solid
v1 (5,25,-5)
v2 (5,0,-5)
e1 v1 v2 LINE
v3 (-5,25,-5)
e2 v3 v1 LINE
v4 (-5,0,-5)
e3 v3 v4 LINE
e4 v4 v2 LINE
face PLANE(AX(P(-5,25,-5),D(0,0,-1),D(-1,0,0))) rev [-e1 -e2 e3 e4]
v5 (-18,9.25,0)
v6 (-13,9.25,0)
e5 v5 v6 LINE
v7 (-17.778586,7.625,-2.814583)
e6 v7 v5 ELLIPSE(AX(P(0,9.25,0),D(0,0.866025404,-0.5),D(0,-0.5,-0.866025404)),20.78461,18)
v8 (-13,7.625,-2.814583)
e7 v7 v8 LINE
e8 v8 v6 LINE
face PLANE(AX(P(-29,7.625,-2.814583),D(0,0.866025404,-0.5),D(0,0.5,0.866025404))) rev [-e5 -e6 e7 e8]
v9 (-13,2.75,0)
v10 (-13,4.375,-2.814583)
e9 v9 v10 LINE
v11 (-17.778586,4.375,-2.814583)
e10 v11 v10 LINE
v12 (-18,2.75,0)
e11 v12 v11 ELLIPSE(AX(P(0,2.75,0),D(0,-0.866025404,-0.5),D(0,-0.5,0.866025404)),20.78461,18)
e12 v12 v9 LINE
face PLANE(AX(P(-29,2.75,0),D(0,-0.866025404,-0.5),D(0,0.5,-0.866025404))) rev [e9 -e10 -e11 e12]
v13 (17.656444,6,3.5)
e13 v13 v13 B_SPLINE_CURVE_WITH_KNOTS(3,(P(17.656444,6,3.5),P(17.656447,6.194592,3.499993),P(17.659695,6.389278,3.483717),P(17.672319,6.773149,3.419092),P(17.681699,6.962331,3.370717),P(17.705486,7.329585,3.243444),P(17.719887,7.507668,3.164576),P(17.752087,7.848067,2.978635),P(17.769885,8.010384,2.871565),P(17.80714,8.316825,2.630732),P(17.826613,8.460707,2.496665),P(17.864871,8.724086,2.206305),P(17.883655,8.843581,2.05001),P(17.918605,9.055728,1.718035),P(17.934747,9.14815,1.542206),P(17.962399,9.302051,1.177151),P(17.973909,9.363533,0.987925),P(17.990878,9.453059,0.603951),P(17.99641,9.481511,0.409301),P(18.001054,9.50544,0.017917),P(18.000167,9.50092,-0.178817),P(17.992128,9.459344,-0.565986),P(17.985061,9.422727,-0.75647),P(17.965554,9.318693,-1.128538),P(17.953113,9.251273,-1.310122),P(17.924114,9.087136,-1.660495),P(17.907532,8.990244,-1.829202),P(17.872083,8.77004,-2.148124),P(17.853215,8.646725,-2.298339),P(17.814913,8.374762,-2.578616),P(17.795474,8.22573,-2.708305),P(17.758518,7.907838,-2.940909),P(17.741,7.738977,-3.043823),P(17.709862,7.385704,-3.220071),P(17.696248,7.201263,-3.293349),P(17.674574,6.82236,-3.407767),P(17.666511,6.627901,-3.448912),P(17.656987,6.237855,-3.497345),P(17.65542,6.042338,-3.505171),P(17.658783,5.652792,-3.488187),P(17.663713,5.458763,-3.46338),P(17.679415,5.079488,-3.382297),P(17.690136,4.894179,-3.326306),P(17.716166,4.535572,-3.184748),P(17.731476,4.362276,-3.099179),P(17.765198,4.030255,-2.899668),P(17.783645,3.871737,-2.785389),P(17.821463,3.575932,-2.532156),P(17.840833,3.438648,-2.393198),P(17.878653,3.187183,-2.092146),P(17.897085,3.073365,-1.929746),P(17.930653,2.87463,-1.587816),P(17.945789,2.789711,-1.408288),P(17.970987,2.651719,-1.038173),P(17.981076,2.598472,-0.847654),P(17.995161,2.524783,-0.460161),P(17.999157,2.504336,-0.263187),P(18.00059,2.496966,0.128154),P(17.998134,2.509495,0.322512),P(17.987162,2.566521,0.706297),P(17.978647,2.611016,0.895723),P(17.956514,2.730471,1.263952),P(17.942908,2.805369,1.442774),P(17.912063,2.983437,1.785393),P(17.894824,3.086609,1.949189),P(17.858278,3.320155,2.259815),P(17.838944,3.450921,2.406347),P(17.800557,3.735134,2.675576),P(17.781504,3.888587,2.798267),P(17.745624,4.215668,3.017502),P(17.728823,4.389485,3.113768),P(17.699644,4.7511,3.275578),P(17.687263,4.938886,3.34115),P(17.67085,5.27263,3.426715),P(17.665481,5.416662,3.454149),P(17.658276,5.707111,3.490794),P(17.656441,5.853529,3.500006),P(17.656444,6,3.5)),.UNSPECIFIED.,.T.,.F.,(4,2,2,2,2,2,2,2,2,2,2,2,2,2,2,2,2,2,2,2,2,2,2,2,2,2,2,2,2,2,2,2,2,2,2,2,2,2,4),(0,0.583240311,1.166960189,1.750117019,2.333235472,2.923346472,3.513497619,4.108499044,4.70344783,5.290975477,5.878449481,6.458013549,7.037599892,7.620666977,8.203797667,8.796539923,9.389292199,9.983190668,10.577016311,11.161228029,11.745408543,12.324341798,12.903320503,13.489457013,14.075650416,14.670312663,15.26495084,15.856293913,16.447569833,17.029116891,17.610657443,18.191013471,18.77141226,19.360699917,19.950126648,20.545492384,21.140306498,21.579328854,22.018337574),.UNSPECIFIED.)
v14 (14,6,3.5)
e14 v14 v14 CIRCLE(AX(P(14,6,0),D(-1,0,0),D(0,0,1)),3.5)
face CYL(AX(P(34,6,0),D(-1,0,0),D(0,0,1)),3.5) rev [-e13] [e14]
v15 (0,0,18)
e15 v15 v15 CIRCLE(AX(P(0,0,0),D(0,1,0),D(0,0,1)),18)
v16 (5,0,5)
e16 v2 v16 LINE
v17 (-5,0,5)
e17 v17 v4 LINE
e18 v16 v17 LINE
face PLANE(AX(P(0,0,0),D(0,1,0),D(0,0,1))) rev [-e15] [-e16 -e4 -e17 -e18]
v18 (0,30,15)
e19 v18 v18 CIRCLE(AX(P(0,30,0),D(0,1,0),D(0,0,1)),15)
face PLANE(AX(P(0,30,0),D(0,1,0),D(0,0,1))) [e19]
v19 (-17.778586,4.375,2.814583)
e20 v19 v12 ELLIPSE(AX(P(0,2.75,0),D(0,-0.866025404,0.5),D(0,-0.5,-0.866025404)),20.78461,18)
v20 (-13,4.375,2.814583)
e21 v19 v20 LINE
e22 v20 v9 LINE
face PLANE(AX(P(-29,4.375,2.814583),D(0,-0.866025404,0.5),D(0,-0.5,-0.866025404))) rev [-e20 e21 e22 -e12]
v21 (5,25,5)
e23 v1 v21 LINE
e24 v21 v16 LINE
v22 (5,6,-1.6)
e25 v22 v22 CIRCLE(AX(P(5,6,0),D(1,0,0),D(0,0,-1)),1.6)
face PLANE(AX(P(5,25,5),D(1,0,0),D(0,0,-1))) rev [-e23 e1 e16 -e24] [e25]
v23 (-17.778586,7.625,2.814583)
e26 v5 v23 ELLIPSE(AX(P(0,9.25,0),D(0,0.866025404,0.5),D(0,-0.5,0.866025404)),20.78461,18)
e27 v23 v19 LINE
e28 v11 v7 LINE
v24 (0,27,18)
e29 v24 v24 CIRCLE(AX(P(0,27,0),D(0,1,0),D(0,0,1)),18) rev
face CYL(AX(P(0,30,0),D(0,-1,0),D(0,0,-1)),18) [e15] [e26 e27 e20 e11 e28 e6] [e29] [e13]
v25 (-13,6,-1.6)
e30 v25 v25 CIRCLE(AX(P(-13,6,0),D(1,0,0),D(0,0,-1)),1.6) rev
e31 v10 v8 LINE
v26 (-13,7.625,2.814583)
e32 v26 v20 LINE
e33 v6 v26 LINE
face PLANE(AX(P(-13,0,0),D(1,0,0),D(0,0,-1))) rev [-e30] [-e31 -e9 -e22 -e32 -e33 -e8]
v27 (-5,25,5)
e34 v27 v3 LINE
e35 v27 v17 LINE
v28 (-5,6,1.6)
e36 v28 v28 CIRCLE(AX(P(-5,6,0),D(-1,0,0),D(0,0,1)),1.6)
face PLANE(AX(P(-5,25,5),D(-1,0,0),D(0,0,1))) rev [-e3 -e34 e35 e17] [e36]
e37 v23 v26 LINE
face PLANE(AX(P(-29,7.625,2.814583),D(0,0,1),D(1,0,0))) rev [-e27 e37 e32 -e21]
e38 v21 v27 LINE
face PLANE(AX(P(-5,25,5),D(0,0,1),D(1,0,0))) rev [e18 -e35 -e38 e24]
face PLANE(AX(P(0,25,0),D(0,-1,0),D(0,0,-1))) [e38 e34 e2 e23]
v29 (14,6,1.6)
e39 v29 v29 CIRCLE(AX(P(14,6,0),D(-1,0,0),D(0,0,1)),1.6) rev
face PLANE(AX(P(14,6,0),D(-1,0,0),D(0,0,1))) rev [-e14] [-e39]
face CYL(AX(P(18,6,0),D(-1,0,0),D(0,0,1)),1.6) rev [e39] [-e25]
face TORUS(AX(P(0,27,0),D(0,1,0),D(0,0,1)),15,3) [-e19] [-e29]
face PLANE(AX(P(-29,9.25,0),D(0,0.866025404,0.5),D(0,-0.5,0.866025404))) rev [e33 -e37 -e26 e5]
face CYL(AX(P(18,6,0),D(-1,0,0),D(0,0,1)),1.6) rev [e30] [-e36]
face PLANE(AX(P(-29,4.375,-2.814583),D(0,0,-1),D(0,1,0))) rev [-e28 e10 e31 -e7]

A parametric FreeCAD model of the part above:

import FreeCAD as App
import Part
import Sketcher
Q = App.Units.Quantity


def edges_at(feature, points):
    """Names of the edges that pass closest to the given points."""
    edges = feature.Shape.Edges
    near = lambda p: min(range(len(edges)), key=lambda i: edges[i].distToShape(Part.Vertex(*p))[0])
    return sorted({f"Edge{near(p) + 1}" for p in points})


def add_polygon(sketch, points):
    """Adds a closed chain of lines whose ends are joined by coincident constraints."""
    first, n = sketch.GeometryCount, len(points)
    for a, b in zip(points, points[1:] + points[:1]):
        sketch.addGeometry(Part.LineSegment(App.Vector(*a, 0), App.Vector(*b, 0)), False)
    for i in range(n):
        sketch.addConstraint(Sketcher.Constraint("Coincident", first + i, 2, first + (i + 1) % n, 1))

doc = App.newDocument("Part")
body = doc.addObject("PartDesign::Body", "Body")

# Sketch on XZ plane
sketch1 = doc.addObject("Sketcher::SketchObject", "Sketch")
body.addObject(sketch1)
sketch1.AttachmentSupport = (doc.XZ_Plane, [""])
sketch1.MapMode = "FlatFace"
sketch1.addGeometry(Part.Circle(App.Vector(0, 0, 0), App.Vector(0, 0, 1), 18), False)
sketch1.addConstraint(Sketcher.Constraint("Coincident", 0, 3, -1, 1))
sketch1.addConstraint(Sketcher.Constraint("Diameter", 0, Q("36 mm")))
pad1 = doc.addObject("PartDesign::Pad", "Pad")
body.addObject(pad1)
pad1.Profile = sketch1
pad1.Length = 30
pad1.Reversed = True
doc.recompute()

fillet = doc.addObject("PartDesign::Fillet", "Fillet")
body.addObject(fillet)
fillet.Base = (pad1, edges_at(pad1, [(-18, 30, 0)]))
fillet.Radius = 3

# Sketch on XZ plane
sketch2 = doc.addObject("Sketcher::SketchObject", "Sketch001")
body.addObject(sketch2)
sketch2.AttachmentSupport = (doc.XZ_Plane, [""])
sketch2.MapMode = "FlatFace"
add_polygon(sketch2, [(-5, 5), (-5, -5), (5, -5), (5, 5)])  # lines 0-3
sketch2.addConstraint(Sketcher.Constraint("Vertical", 0))
sketch2.addConstraint(Sketcher.Constraint("Horizontal", 1))
sketch2.addConstraint(Sketcher.Constraint("Vertical", 2))
sketch2.addConstraint(Sketcher.Constraint("Horizontal", 3))
sketch2.addConstraint(Sketcher.Constraint("Symmetric", 0, 2, 2, 2, -1, 1))
sketch2.addConstraint(Sketcher.Constraint("Equal", 3, 0))
sketch2.addConstraint(Sketcher.Constraint("DistanceX", 1, 1, 1, 2, Q("10 mm")))
pocket1 = doc.addObject("PartDesign::Pocket", "Pocket")
body.addObject(pocket1)
pocket1.Profile = sketch2
pocket1.Length = 25

# Sketch on YZ plane
sketch3 = doc.addObject("Sketcher::SketchObject", "Sketch002")
body.addObject(sketch3)
sketch3.AttachmentSupport = (doc.YZ_Plane, [""])
sketch3.MapMode = "FlatFace"
sketch3.AttachmentOffset = App.Placement(App.Vector(0, 0, 5), App.Rotation())
sketch3.addGeometry(Part.Circle(App.Vector(6, 0, 0), App.Vector(0, 0, 1), 1.6), False)
sketch3.addConstraint(Sketcher.Constraint("PointOnObject", 0, 3, -1))
sketch3.addConstraint(Sketcher.Constraint("Diameter", 0, Q("3.2 mm")))
sketch3.addConstraint(Sketcher.Constraint("DistanceX", -1, 1, 0, 3, Q("6 mm")))
pocket2 = doc.addObject("PartDesign::Pocket", "Pocket001")
body.addObject(pocket2)
pocket2.Profile = sketch3
pocket2.Type = "ThroughAll"
pocket2.Midplane = True

# Sketch on YZ plane
sketch4 = doc.addObject("Sketcher::SketchObject", "Sketch003")
body.addObject(sketch4)
sketch4.AttachmentSupport = (doc.YZ_Plane, [""])
sketch4.MapMode = "FlatFace"
sketch4.AttachmentOffset = App.Placement(App.Vector(0, 0, 14), App.Rotation())
sketch4.addGeometry(Part.Circle(App.Vector(6, 0, 0), App.Vector(0, 0, 1), 3.5), False)
sketch4.addConstraint(Sketcher.Constraint("PointOnObject", 0, 3, -1))
sketch4.addConstraint(Sketcher.Constraint("Diameter", 0, Q("7 mm")))
sketch4.addConstraint(Sketcher.Constraint("DistanceX", -1, 1, 0, 3, Q("6 mm")))
pocket3 = doc.addObject("PartDesign::Pocket", "Pocket002")
body.addObject(pocket3)
pocket3.Profile = sketch4
pocket3.Length = 20
pocket3.Reversed = True

# Sketch on YZ plane
sketch5 = doc.addObject("Sketcher::SketchObject", "Sketch004")
body.addObject(sketch5)
sketch5.AttachmentSupport = (doc.YZ_Plane, [""])
sketch5.MapMode = "FlatFace"
sketch5.AttachmentOffset = App.Placement(App.Vector(0, 0, -13), App.Rotation())
add_polygon(sketch5, [(7.625, 2.814583), (4.375, 2.814583), (2.75, 0), (4.375, -2.814583), (7.625, -2.814583), (9.25, 0)])  # lines 0-5
sketch5.addConstraint(Sketcher.Constraint("Horizontal", 0))
sketch5.addConstraint(Sketcher.Constraint("Horizontal", 3))
sketch5.addConstraint(Sketcher.Constraint("Symmetric", 0, 2, 2, 2, -1))
sketch5.addConstraint(Sketcher.Constraint("PointOnObject", 1, 2, -1))
sketch5.addConstraint(Sketcher.Constraint("PointOnObject", 4, 2, -1))
sketch5.addConstraint(Sketcher.Constraint("Parallel", 1, 4))
sketch5.addConstraint(Sketcher.Constraint("Parallel", 2, 5))
sketch5.addConstraint(Sketcher.Constraint("Angle", 1, Q("-120 deg")))
sketch5.addConstraint(Sketcher.Constraint("DistanceX", 0, 2, 0, 1, Q("3.25 mm")))
sketch5.addConstraint(Sketcher.Constraint("DistanceX", 1, 2, 4, 2, Q("6.5 mm")))
sketch5.addConstraint(Sketcher.Constraint("DistanceX", -1, 1, 1, 2, Q("2.75 mm")))
pocket4 = doc.addObject("PartDesign::Pocket", "Pocket003")
body.addObject(pocket4)
pocket4.Profile = sketch5
pocket4.Length = 16

doc.recompute()
